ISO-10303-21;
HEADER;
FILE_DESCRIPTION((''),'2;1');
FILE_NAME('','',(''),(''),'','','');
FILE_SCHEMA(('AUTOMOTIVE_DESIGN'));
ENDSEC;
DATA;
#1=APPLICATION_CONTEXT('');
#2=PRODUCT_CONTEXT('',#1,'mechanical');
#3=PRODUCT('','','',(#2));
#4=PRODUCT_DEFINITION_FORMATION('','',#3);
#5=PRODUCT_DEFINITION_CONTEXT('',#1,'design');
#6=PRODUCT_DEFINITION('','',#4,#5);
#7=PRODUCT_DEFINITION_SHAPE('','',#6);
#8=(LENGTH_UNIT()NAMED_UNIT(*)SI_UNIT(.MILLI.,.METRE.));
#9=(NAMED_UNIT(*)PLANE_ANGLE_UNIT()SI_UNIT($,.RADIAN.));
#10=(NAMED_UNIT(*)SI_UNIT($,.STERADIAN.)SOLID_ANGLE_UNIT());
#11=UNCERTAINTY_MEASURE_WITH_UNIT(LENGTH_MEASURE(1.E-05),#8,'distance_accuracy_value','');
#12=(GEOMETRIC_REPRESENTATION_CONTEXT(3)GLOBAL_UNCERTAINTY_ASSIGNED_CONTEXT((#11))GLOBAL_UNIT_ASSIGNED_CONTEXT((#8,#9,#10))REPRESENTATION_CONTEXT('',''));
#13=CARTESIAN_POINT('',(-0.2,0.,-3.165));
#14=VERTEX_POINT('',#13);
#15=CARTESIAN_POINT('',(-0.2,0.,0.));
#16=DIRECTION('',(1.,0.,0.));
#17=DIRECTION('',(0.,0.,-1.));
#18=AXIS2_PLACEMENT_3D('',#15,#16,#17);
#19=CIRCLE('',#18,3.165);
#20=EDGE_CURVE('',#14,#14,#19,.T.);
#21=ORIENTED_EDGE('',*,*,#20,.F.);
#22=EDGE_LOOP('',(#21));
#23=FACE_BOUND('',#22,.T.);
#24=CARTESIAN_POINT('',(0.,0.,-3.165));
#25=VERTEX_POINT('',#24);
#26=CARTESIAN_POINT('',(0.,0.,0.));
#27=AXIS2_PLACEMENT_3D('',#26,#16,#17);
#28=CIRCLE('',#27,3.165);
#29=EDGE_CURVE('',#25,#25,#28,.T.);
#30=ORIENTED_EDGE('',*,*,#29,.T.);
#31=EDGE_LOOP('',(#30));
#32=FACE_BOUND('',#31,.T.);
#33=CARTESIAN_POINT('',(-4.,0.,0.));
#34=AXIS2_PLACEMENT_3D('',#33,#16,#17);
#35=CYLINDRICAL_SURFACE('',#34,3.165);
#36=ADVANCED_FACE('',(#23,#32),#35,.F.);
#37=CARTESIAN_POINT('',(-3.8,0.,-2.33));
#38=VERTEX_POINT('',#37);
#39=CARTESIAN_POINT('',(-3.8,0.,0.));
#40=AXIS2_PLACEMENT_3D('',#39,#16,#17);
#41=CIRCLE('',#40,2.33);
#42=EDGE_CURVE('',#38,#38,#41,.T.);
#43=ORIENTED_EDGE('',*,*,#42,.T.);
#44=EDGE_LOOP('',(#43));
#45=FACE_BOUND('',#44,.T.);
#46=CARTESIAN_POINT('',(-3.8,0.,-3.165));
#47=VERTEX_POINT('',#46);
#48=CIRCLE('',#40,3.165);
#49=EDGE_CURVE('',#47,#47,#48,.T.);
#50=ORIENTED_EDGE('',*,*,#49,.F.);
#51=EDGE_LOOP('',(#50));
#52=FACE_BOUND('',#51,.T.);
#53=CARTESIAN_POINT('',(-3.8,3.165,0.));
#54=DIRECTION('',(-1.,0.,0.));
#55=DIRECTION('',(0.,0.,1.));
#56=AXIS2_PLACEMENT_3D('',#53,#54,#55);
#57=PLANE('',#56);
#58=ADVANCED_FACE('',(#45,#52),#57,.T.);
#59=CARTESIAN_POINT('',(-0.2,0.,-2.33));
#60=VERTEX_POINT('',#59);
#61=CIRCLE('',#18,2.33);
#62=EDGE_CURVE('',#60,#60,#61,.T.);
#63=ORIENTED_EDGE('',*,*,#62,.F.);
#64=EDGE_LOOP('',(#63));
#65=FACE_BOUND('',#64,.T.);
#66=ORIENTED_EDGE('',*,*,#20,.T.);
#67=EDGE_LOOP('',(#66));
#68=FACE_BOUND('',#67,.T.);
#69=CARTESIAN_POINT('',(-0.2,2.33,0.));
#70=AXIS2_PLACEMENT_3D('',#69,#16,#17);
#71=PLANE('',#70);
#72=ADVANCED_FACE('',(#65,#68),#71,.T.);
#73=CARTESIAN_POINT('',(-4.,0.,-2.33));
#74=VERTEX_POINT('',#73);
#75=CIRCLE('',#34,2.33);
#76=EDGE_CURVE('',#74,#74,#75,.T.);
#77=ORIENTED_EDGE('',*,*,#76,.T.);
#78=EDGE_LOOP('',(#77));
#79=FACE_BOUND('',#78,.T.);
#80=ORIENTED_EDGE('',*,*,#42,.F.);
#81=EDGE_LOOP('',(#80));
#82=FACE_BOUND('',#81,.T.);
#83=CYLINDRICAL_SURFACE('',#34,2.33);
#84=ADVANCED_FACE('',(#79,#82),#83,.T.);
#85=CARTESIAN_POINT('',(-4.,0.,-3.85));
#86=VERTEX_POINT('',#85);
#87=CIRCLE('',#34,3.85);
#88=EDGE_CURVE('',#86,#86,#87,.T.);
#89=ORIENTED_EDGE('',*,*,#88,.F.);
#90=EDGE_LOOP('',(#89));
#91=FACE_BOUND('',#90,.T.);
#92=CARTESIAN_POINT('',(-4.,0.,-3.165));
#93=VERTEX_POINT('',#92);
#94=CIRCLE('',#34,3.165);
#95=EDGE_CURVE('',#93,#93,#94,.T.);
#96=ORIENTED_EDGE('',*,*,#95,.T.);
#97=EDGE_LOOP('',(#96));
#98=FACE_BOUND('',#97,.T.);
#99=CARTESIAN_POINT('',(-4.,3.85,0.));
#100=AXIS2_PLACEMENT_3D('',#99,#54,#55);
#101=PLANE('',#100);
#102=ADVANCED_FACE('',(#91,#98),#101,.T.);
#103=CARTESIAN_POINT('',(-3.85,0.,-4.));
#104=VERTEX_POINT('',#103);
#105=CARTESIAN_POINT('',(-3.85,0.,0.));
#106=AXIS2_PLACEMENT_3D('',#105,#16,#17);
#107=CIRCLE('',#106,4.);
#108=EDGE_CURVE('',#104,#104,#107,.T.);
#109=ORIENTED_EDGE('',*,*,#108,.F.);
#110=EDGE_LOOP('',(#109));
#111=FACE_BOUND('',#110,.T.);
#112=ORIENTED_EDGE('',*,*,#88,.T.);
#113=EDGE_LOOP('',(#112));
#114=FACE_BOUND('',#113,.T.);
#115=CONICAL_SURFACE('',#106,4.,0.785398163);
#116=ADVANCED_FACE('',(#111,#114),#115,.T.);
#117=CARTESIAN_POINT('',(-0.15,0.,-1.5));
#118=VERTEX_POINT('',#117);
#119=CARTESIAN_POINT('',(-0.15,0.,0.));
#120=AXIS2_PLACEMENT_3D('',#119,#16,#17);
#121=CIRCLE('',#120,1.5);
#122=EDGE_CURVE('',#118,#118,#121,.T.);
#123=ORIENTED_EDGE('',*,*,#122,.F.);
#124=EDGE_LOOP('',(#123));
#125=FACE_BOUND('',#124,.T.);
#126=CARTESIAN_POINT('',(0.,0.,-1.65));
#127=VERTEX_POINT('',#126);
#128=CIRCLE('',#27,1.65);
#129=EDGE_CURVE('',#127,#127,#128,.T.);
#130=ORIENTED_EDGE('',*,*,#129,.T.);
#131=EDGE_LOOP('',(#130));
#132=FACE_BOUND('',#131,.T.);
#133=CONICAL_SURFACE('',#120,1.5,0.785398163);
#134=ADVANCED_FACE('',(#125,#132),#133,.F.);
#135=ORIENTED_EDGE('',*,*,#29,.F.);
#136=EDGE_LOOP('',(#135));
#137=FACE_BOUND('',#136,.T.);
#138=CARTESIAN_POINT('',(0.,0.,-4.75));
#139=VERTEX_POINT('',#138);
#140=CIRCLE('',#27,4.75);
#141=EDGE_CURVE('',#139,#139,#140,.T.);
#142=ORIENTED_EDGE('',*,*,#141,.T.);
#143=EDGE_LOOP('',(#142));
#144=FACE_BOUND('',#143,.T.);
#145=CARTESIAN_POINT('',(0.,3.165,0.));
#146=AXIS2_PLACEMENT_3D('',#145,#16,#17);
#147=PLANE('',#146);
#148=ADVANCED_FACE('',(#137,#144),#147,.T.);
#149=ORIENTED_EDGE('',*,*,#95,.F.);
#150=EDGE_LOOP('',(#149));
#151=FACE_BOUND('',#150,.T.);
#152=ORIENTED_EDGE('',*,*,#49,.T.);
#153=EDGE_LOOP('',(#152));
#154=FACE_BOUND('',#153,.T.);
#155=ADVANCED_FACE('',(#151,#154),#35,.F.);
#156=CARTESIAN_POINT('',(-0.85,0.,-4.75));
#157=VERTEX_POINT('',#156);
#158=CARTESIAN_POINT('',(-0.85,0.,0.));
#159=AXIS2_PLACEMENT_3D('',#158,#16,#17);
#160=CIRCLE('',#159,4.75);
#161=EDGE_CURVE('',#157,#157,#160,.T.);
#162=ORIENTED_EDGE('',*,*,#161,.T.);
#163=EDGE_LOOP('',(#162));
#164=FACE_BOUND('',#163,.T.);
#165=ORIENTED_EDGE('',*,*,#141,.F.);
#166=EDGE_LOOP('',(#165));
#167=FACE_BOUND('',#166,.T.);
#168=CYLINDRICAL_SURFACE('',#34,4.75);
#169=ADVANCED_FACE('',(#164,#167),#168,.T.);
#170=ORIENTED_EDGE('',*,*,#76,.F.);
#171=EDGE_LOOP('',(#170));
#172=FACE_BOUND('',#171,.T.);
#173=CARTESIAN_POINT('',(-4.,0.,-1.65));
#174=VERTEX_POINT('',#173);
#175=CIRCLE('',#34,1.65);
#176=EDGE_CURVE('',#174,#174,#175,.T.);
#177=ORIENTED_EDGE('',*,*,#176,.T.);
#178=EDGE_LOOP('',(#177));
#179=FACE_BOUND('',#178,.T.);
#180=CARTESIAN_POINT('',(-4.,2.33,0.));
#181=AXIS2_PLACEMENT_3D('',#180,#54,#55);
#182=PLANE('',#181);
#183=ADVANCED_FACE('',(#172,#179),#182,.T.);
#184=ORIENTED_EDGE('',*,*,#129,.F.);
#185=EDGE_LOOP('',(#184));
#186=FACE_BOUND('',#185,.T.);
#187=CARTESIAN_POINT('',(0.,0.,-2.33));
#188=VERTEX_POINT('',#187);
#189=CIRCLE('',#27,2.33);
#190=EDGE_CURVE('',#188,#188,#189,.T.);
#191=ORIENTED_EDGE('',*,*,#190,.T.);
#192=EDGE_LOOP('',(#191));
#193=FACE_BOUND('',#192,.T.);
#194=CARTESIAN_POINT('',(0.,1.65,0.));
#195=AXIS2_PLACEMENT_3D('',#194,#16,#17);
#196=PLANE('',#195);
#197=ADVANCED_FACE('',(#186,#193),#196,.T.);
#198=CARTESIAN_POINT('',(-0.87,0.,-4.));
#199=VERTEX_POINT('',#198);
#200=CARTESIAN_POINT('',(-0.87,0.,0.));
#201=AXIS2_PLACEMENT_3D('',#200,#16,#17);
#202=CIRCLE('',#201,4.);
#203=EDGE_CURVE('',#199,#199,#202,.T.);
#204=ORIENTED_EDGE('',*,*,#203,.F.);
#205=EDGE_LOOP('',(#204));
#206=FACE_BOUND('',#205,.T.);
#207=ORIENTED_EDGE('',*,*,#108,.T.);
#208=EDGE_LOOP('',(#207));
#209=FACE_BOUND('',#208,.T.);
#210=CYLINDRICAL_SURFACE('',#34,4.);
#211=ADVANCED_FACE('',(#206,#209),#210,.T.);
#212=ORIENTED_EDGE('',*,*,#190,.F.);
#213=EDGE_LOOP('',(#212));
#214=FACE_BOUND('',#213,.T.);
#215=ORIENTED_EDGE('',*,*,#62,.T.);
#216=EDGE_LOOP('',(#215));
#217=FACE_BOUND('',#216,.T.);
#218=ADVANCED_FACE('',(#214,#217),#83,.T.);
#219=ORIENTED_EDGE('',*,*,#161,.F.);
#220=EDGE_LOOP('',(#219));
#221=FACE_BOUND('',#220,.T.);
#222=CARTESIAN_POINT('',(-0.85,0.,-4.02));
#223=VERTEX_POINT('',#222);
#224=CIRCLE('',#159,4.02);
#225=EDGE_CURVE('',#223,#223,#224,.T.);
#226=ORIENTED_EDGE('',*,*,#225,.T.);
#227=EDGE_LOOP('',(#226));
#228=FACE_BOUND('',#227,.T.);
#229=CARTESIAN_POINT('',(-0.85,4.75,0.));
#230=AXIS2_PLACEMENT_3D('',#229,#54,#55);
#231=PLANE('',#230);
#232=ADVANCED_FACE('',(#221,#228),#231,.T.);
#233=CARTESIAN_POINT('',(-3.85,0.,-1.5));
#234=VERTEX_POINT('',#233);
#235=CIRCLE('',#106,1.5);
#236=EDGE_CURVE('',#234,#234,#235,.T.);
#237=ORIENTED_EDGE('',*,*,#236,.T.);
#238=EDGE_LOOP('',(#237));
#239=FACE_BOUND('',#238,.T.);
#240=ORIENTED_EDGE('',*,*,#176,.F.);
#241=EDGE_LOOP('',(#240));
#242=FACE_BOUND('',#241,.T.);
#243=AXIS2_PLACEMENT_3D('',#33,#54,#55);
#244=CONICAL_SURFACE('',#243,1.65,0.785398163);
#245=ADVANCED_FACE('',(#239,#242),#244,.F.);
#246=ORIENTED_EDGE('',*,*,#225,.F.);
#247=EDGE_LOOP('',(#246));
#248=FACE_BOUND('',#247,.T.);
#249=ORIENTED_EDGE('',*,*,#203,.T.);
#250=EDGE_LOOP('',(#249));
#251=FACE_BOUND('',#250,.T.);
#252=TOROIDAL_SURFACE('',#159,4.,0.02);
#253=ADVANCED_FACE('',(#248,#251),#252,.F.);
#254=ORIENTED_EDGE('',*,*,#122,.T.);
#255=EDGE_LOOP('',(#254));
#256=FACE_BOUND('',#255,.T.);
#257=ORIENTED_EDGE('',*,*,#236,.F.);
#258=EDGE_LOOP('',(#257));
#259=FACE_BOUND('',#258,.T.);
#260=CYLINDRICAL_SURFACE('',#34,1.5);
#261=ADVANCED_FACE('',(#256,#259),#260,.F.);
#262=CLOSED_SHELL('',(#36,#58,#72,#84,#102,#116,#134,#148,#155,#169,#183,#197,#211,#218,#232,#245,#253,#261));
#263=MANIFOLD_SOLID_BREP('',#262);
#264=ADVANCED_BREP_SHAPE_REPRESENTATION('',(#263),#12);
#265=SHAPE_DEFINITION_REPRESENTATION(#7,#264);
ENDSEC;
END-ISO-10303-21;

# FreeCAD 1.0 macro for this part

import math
import FreeCAD as App
import Part
import Sketcher
from FreeCAD import Vector

doc = App.newDocument("Part")
body = doc.addObject("PartDesign::Body", "Body")

# Sketch on XY plane
sketch1 = doc.addObject("Sketcher::SketchObject", "Sketch")
body.addObject(sketch1)
sketch1.AttachmentSupport = (doc.XY_Plane, [""])
sketch1.MapMode = "FlatFace"
sketch1.addGeometry([
    Part.LineSegment(Vector(-3.8, 3.165, 0), Vector(-3.8, 2.33, 0)),  # 0
    Part.LineSegment(Vector(-3.8, 2.33, 0), Vector(-4, 2.33, 0)),  # 1
    Part.LineSegment(Vector(-4, 2.33, 0), Vector(-4, 1.65, 0)),  # 2
    Part.LineSegment(Vector(-4, 1.65, 0), Vector(-3.85, 1.5, 0)),  # 3
    Part.LineSegment(Vector(-3.85, 1.5, 0), Vector(-0.15, 1.5, 0)),  # 4
    Part.LineSegment(Vector(-0.15, 1.5, 0), Vector(0, 1.65, 0)),  # 5
    Part.LineSegment(Vector(0, 1.65, 0), Vector(0, 2.33, 0)),  # 6
    Part.LineSegment(Vector(0, 2.33, 0), Vector(-0.2, 2.33, 0)),  # 7
    Part.LineSegment(Vector(-0.2, 2.33, 0), Vector(-0.2, 3.165, 0)),  # 8
    Part.LineSegment(Vector(-0.2, 3.165, 0), Vector(0, 3.165, 0)),  # 9
    Part.LineSegment(Vector(0, 3.165, 0), Vector(0, 4.75, 0)),  # 10
    Part.LineSegment(Vector(0, 4.75, 0), Vector(-0.85, 4.75, 0)),  # 11
    Part.LineSegment(Vector(-0.85, 4.75, 0), Vector(-0.85, 4.02, 0)),  # 12
    Part.ArcOfCircle(Part.Circle(Vector(-0.85, 4, 0), Vector(0, 0, 1), 0.02), math.radians(180), math.radians(450)),  # 13
    Part.LineSegment(Vector(-0.87, 4, 0), Vector(-3.85, 4, 0)),  # 14
    Part.LineSegment(Vector(-3.85, 4, 0), Vector(-4, 3.85, 0)),  # 15
    Part.LineSegment(Vector(-4, 3.85, 0), Vector(-4, 3.165, 0)),  # 16
    Part.LineSegment(Vector(-4, 3.165, 0), Vector(-3.8, 3.165, 0)),  # 17
], False)
sketch1.addConstraint([
    Sketcher.Constraint("Coincident", 0, 2, 1, 1),
    Sketcher.Constraint("Coincident", 1, 2, 2, 1),
    Sketcher.Constraint("Coincident", 2, 2, 3, 1),
    Sketcher.Constraint("Coincident", 3, 2, 4, 1),
    Sketcher.Constraint("Coincident", 4, 2, 5, 1),
    Sketcher.Constraint("Coincident", 5, 2, 6, 1),
    Sketcher.Constraint("Coincident", 6, 2, 7, 1),
    Sketcher.Constraint("Coincident", 7, 2, 8, 1),
    Sketcher.Constraint("Coincident", 8, 2, 9, 1),
    Sketcher.Constraint("Coincident", 9, 2, 10, 1),
    Sketcher.Constraint("Coincident", 10, 2, 11, 1),
    Sketcher.Constraint("Coincident", 11, 2, 12, 1),
    Sketcher.Constraint("Coincident", 12, 2, 13, 2),
    Sketcher.Constraint("Coincident", 13, 1, 14, 1),
    Sketcher.Constraint("Coincident", 14, 2, 15, 1),
    Sketcher.Constraint("Coincident", 15, 2, 16, 1),
    Sketcher.Constraint("Coincident", 16, 2, 17, 1),
    Sketcher.Constraint("Coincident", 17, 2, 0, 1),
    Sketcher.Constraint("Vertical", 0),
    Sketcher.Constraint("Horizontal", 1),
    Sketcher.Constraint("Vertical", 2),
    Sketcher.Constraint("Horizontal", 4),
    Sketcher.Constraint("Vertical", 6),
    Sketcher.Constraint("Horizontal", 7),
    Sketcher.Constraint("Vertical", 8),
    Sketcher.Constraint("Horizontal", 9),
    Sketcher.Constraint("Vertical", 10),
    Sketcher.Constraint("Horizontal", 11),
    Sketcher.Constraint("Vertical", 12),
    Sketcher.Constraint("Horizontal", 14),
    Sketcher.Constraint("Vertical", 16),
    Sketcher.Constraint("Horizontal", 17),
    Sketcher.Constraint("PointOnObject", 5, 2, -2),
    Sketcher.Constraint("PointOnObject", 9, 2, -2),
    Sketcher.Constraint("Perpendicular", 3, 5),
    Sketcher.Constraint("Parallel", 5, 15),
    Sketcher.Constraint("Horizontal", 2, 2, 5, 2),
    Sketcher.Constraint("Horizontal", 1, 2, 6, 2),
    Sketcher.Constraint("Horizontal", 9, 2, 16, 2),
    Sketcher.Constraint("Vertical", 13, 3, 11, 2),
    Sketcher.Constraint("Vertical", 3, 2, 14, 2),
    Sketcher.Constraint("Vertical", 2, 2, 15, 2),
    Sketcher.Constraint("Equal", 1, 7),
    Sketcher.Constraint("Equal", 3, 5),
    Sketcher.Constraint("Radius", 13, 0.02),
    Sketcher.Constraint("DistanceX", 1, 2, 1, 1, 0.2),
    Sketcher.Constraint("DistanceX", 4, 1, 4, 2, 3.7),
    Sketcher.Constraint("DistanceY", -1, 1, 13, 3, 4.0),
    Sketcher.Constraint("DistanceX", 1, 2, -1, 1, 4.0),
    Sketcher.Constraint("DistanceY", -1, 1, 13, 1, 4.0),
    Sketcher.Constraint("DistanceX", 3, 2, 13, 3, 3.0),
    Sketcher.Constraint("DistanceY", 2, 2, 2, 1, 0.68),
    Sketcher.Constraint("DistanceY", 12, 2, 12, 1, 0.73),
    Sketcher.Constraint("DistanceY", -1, 1, 3, 2, 1.5),
    Sketcher.Constraint("DistanceY", 0, 2, 0, 1, 0.835),
])
revolution = doc.addObject("PartDesign::Revolution", "Revolution")
body.addObject(revolution)
revolution.Profile = sketch1
revolution.ReferenceAxis = (sketch1, ["H_Axis"])
revolution.Angle = 360

doc.recompute()
